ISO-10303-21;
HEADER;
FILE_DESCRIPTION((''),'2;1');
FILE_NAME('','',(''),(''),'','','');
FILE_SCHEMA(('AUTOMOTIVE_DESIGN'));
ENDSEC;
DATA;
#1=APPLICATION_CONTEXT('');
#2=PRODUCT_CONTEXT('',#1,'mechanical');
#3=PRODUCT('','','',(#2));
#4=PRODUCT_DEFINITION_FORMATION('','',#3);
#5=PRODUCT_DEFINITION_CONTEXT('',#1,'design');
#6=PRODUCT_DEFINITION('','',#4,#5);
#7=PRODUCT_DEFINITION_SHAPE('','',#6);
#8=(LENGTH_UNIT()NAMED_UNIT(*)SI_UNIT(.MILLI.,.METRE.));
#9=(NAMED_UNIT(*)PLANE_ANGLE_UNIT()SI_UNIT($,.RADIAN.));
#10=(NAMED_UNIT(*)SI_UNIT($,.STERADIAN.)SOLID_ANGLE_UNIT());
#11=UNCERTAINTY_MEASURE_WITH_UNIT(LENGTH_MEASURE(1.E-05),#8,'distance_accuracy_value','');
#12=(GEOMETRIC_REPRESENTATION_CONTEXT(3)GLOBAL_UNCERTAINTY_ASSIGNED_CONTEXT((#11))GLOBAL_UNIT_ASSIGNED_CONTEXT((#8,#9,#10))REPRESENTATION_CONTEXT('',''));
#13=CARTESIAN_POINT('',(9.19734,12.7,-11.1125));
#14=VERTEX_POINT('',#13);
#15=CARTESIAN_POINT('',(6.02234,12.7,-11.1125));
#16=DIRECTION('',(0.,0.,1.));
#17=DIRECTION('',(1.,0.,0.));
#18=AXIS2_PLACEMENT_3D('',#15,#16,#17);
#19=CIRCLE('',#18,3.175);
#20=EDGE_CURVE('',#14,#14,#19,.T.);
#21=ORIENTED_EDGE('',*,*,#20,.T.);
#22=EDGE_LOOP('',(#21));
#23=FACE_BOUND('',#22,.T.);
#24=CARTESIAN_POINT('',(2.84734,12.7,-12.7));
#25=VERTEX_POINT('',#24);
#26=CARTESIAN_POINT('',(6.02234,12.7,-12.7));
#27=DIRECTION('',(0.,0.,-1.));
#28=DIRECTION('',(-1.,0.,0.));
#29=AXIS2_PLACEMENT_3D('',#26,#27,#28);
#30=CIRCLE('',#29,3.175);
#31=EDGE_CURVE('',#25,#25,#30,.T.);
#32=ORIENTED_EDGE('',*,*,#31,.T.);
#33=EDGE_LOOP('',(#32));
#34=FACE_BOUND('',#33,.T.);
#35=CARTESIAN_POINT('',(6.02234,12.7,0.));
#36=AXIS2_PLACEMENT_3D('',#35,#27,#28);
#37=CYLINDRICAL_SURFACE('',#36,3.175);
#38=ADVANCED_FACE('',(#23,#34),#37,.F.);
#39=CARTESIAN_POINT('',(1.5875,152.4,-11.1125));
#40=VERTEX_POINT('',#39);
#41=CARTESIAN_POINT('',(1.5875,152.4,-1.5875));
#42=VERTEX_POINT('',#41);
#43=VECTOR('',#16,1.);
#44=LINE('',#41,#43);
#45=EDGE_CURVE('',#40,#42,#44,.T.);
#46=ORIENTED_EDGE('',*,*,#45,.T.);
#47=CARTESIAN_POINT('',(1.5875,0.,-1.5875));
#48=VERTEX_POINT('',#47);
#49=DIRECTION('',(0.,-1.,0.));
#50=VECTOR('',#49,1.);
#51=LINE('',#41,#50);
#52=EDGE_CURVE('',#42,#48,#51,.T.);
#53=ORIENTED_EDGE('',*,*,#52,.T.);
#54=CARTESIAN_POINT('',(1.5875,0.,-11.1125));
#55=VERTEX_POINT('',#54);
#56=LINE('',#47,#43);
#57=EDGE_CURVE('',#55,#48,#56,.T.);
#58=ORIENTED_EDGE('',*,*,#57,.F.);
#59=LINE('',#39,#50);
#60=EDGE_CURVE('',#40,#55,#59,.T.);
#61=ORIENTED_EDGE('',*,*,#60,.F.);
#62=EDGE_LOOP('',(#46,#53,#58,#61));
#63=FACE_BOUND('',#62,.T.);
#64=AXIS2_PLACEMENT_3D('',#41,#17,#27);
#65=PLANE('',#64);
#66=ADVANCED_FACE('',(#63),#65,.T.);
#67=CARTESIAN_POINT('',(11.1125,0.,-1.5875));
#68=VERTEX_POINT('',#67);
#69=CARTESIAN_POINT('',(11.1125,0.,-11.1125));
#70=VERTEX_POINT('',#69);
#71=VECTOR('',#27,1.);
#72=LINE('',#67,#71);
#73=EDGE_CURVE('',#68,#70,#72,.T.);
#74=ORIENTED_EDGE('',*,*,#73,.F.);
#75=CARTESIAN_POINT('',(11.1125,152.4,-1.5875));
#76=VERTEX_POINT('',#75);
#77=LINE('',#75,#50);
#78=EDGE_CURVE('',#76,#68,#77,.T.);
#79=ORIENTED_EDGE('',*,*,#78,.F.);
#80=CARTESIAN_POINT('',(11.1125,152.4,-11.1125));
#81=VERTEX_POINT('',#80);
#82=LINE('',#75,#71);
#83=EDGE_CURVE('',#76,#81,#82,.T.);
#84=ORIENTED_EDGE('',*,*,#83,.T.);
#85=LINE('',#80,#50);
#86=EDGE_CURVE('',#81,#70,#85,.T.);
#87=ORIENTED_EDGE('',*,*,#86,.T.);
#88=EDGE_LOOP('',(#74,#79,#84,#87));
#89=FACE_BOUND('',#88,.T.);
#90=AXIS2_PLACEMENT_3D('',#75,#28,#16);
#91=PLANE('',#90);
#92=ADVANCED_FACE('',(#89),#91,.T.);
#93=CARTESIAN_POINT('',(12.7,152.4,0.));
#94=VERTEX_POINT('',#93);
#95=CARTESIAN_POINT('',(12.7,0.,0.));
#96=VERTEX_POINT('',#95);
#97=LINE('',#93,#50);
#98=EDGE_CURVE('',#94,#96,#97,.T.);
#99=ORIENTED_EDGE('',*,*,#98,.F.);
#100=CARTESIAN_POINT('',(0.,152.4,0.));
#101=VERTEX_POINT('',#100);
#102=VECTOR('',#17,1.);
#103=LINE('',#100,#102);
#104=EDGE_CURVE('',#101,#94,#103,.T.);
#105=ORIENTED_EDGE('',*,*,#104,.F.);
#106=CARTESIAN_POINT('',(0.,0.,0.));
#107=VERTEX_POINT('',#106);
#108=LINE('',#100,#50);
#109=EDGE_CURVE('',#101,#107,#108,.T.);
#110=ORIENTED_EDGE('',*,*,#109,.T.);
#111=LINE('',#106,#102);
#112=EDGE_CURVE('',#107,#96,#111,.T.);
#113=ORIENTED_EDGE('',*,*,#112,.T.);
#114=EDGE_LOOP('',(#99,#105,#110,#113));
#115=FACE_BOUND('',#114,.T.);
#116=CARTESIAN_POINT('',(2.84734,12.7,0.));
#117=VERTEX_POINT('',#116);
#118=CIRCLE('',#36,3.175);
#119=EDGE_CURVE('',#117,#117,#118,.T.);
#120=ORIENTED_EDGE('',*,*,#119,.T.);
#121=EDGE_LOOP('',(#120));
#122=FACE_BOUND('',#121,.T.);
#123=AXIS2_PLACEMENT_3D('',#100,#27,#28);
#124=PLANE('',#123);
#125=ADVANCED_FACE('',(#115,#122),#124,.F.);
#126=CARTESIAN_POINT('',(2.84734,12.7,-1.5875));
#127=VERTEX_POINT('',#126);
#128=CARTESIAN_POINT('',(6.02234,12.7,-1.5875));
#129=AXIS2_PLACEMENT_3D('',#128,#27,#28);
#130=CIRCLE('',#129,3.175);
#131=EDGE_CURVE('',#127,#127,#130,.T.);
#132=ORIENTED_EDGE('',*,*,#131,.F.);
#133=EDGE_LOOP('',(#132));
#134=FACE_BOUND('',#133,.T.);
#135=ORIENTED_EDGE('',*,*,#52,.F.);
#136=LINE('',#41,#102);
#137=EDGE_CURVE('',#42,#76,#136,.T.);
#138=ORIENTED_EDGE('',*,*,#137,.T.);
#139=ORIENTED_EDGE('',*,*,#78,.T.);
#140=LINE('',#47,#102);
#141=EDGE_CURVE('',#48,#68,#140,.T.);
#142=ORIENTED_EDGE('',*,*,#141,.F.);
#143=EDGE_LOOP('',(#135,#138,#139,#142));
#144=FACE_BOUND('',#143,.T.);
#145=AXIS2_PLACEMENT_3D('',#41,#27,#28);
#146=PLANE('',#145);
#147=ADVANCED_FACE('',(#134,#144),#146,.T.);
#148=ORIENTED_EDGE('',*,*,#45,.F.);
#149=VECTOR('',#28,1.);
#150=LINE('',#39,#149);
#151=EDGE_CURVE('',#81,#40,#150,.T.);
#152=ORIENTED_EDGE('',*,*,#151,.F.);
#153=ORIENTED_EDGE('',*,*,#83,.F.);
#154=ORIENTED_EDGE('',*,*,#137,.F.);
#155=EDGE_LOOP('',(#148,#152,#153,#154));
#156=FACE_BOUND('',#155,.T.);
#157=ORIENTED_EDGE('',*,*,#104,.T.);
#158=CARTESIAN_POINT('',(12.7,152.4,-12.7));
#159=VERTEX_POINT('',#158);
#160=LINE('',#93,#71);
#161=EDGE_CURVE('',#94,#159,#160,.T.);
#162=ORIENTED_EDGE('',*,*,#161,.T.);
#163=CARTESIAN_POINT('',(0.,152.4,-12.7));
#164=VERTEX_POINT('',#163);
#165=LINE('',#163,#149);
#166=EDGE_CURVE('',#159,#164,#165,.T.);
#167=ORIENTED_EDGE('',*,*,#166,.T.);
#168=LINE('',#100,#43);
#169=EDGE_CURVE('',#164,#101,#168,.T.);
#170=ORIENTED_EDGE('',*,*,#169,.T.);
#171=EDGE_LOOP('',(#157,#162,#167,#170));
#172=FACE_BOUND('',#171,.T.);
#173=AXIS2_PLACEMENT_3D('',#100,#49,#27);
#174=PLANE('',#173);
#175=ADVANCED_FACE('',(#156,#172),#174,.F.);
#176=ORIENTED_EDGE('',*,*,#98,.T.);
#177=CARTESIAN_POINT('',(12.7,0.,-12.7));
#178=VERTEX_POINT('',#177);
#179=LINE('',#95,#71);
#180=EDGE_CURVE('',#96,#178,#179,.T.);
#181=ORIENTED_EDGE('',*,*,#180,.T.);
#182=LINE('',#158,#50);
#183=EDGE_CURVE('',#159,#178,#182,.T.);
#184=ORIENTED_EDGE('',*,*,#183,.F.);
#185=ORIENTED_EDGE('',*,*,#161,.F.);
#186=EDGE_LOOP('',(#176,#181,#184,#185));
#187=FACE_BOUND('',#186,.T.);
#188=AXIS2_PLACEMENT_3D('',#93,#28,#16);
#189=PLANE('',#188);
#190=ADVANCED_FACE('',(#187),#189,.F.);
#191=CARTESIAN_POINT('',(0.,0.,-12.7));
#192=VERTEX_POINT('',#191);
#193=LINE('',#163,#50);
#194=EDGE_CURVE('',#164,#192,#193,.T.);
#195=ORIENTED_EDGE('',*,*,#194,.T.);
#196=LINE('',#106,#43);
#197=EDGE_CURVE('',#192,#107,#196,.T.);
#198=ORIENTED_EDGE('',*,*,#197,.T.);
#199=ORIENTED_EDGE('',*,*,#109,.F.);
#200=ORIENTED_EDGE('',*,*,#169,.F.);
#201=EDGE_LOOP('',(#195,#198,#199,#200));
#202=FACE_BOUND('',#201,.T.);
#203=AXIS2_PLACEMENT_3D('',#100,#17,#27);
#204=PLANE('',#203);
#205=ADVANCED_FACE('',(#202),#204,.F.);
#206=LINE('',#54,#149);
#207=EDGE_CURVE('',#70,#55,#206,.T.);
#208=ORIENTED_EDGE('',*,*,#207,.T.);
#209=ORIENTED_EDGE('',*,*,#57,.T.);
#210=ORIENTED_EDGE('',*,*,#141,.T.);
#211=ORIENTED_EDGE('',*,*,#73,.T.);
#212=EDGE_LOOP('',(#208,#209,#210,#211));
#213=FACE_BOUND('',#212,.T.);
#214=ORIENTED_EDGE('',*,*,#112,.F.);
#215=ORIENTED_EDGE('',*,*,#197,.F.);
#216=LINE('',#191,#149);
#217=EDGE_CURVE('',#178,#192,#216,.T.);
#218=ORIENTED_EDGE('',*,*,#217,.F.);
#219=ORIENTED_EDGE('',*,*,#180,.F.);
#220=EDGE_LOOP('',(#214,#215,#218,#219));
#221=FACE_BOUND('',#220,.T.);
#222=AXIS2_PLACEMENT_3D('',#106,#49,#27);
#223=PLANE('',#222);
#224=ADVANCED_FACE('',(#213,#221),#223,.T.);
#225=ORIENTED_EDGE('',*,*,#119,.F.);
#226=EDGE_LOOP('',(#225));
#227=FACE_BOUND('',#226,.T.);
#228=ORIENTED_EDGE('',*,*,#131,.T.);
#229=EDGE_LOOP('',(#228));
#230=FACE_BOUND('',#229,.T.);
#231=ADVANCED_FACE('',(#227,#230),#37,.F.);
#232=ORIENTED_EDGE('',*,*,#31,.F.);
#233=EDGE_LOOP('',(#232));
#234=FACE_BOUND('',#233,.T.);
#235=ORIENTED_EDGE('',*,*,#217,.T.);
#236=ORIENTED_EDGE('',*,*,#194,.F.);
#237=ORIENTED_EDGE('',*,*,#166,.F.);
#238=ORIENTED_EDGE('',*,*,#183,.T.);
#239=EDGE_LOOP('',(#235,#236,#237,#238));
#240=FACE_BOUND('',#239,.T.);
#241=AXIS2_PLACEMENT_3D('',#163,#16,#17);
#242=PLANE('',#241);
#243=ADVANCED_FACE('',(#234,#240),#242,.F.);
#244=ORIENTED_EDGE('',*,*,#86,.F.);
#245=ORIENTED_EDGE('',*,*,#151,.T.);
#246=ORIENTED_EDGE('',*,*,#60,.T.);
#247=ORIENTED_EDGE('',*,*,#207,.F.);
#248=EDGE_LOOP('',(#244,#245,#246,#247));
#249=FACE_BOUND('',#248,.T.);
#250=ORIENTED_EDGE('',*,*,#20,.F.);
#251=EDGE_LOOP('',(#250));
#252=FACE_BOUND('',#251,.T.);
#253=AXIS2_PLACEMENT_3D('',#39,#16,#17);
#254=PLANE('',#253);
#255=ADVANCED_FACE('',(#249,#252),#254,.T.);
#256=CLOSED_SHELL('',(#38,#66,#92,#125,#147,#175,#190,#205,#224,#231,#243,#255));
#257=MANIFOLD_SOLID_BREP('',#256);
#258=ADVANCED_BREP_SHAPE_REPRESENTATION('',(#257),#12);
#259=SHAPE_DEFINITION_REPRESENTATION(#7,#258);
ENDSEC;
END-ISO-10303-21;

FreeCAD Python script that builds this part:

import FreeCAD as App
import Part
import Sketcher
from FreeCAD import Vector
Q = App.Units.Quantity


def add_polygon(sketch, points):
    """Adds a closed chain of lines whose ends are joined by coincident constraints."""
    first, n = sketch.GeometryCount, len(points)
    for a, b in zip(points, points[1:] + points[:1]):
        sketch.addGeometry(Part.LineSegment(App.Vector(*a, 0), App.Vector(*b, 0)), False)
    for i in range(n):
        sketch.addConstraint(Sketcher.Constraint("Coincident", first + i, 2, first + (i + 1) % n, 1))

doc = App.newDocument("Part")
body = doc.addObject("PartDesign::Body", "Body")

# Sketch on XZ plane
sketch1 = doc.addObject("Sketcher::SketchObject", "Sketch")
body.addObject(sketch1)
sketch1.AttachmentSupport = (doc.XZ_Plane, [""])
sketch1.MapMode = "FlatFace"
add_polygon(sketch1, [(0, -13), (0, 0), (13, 0), (13, -13)])  # lines 0-3
add_polygon(sketch1, [(11, -2), (2, -2), (2, -11), (11, -11)])  # lines 4-7
sketch1.addConstraint([
    Sketcher.Constraint("Vertical", 0),
    Sketcher.Constraint("Horizontal", 1),
    Sketcher.Constraint("Vertical", 2),
    Sketcher.Constraint("Horizontal", 3),
    Sketcher.Constraint("Horizontal", 4),
    Sketcher.Constraint("Vertical", 5),
    Sketcher.Constraint("Horizontal", 6),
    Sketcher.Constraint("Vertical", 7),
    Sketcher.Constraint("Coincident", 0, 2, -1, 1),
    Sketcher.Constraint("Equal", 3, 0),
    Sketcher.Constraint("Equal", 6, 5),
    Sketcher.Constraint("DistanceX", 1, 1, 1, 2, Q("0.5 in")),
    Sketcher.Constraint("DistanceX", 4, 2, 4, 1, Q("0.375 in")),
    Sketcher.Constraint("DistanceX", -1, 1, 4, 2, Q("0.0625 in")),
    Sketcher.Constraint("DistanceY", 4, 2, -1, 1, Q("0.0625 in")),
])
pad1 = doc.addObject("PartDesign::Pad", "Pad")
body.addObject(pad1)
pad1.Profile = sketch1
pad1.Length = Q("6 in")
pad1.Reversed = True

# Sketch on XY plane
sketch2 = doc.addObject("Sketcher::SketchObject", "Sketch001")
body.addObject(sketch2)
sketch2.AttachmentSupport = (doc.XY_Plane, [""])
sketch2.MapMode = "FlatFace"
sketch2.AttachmentOffset = App.Placement(Vector(0, 0, -0.5 * 25.4), App.Rotation())
sketch2.addGeometry(Part.Circle(Vector(6, 12.7, 0), Vector(0, 0, 1), 3.2), False)
sketch2.addConstraint([
    Sketcher.Constraint("Diameter", 0, Q("0.25 in")),
    Sketcher.Constraint("DistanceY", -1, 1, 0, 3, Q("0.5 in")),
    Sketcher.Constraint("DistanceX", -1, 1, 0, 3, Q("0.2371 in")),
])
pocket1 = doc.addObject("PartDesign::Pocket", "Pocket")
body.addObject(pocket1)
pocket1.Profile = sketch2
pocket1.Type = "ThroughAll"
pocket1.Reversed = True

doc.recompute()
